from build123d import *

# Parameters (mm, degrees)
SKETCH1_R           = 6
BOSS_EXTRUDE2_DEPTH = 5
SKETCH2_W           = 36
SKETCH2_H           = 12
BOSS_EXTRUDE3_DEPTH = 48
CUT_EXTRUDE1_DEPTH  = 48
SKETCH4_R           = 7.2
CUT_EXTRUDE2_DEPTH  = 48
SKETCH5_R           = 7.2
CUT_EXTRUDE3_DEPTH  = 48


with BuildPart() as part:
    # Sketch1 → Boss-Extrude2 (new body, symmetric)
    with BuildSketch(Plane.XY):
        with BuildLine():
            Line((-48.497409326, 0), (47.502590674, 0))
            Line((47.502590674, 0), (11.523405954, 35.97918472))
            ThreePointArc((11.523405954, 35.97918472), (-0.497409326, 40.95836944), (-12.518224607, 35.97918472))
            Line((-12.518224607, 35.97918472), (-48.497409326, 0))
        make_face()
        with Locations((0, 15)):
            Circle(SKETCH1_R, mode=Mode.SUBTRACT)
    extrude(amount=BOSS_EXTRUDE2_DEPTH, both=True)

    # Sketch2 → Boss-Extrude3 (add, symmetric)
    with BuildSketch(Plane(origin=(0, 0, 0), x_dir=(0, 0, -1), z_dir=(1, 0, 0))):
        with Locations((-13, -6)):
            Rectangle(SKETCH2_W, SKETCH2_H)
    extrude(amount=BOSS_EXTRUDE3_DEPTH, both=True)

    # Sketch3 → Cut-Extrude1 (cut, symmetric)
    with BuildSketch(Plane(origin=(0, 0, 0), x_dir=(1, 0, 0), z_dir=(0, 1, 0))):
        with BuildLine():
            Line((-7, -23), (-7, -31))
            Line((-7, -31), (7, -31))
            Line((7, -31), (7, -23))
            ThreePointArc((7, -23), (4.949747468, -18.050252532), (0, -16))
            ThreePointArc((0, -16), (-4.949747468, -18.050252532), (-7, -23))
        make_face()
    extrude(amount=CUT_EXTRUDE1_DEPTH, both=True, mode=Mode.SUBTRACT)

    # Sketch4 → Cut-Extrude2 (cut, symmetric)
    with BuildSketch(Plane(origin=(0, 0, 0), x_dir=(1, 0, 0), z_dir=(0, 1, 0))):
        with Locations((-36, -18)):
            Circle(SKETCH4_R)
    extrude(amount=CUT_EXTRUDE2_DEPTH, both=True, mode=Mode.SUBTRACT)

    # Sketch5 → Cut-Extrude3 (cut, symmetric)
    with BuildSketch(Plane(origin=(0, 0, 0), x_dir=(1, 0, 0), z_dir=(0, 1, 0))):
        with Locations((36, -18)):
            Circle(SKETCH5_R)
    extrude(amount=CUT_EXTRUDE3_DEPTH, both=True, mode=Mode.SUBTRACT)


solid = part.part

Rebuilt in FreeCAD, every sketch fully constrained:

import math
import FreeCAD as App
import Part
import Sketcher

V = App.Vector

doc = App.newDocument("Part")
body = doc.addObject("PartDesign::Body", "Body")

sketch1 = body.newObject("Sketcher::SketchObject", "Sketch")
sketch1.AttachmentSupport = (doc.getObject("XY_Plane"), [""])
sketch1.MapMode = "FlatFace"
sketch1.addGeometry([
    Part.LineSegment(V(-48, 0, 0), V(48, 0, 0)),
    Part.LineSegment(V(48, 0, 0), V(12, 36, 0)),
    Part.ArcOfCircle(Part.Circle(V(0, 24, 0), V(0, 0, 1), 17), math.radians(45), math.radians(135)),
    Part.LineSegment(V(-13, 36, 0), V(-48, 0, 0)),
    Part.Circle(V(0, 15, 0), V(0, 0, 1), 6),
], False)
sketch1.addConstraint([
    Sketcher.Constraint("Coincident", 0, 2, 1, 1),
    Sketcher.Constraint("Tangent", 1, 2, 2, 1),
    Sketcher.Constraint("Tangent", 2, 2, 3, 1),
    Sketcher.Constraint("Coincident", 3, 2, 0, 1),
    Sketcher.Constraint("Horizontal", 0),
    Sketcher.Constraint("PointOnObject", 4, 3, -2),
    Sketcher.Constraint("PointOnObject", 0, 2, -1),
    Sketcher.Constraint("Perpendicular", 1, 3),
    Sketcher.Constraint("Horizontal", 1, 2, 2, 2),
    Sketcher.Constraint("Diameter", 4, 12.0),
    Sketcher.Constraint("Radius", 2, 17.0),
    Sketcher.Constraint("DistanceX", 0, 1, 0, 2, 96.0),
    Sketcher.Constraint("DistanceY", -1, 1, 4, 3, 15.0),
    Sketcher.Constraint("DistanceX", 2, 3, -1, 1, 0.497409),
])
pad1 = body.newObject("PartDesign::Pad", "Pad")
pad1.Profile = sketch1
pad1.Length = 10
pad1.Midplane = True

sketch2 = body.newObject("Sketcher::SketchObject", "Sketch001")
sketch2.AttachmentSupport = (doc.getObject("YZ_Plane"), [""])
sketch2.MapMode = "FlatFace"
sketch2.addGeometry([
    Part.LineSegment(V(0, 31, 0), V(-12, 31, 0)),
    Part.LineSegment(V(-12, 31, 0), V(-12, -5, 0)),
    Part.LineSegment(V(-12, -5, 0), V(0, -5, 0)),
    Part.LineSegment(V(0, -5, 0), V(0, 31, 0)),
], False)
sketch2.addConstraint([
    Sketcher.Constraint("Coincident", 0, 2, 1, 1),
    Sketcher.Constraint("Coincident", 1, 2, 2, 1),
    Sketcher.Constraint("Coincident", 2, 2, 3, 1),
    Sketcher.Constraint("Coincident", 3, 2, 0, 1),
    Sketcher.Constraint("Horizontal", 0),
    Sketcher.Constraint("Vertical", 1),
    Sketcher.Constraint("Horizontal", 2),
    Sketcher.Constraint("Vertical", 3),
    Sketcher.Constraint("PointOnObject", 2, 2, -2),
    Sketcher.Constraint("DistanceX", 0, 2, 0, 1, 12.0),
    Sketcher.Constraint("DistanceY", 1, 2, 1, 1, 36.0),
    Sketcher.Constraint("DistanceY", -1, 1, 0, 2, 31.0),
])
pad2 = body.newObject("PartDesign::Pad", "Pad001")
pad2.Profile = sketch2
pad2.Length = 96
pad2.Midplane = True

sketch3 = body.newObject("Sketcher::SketchObject", "Sketch002")
sketch3.AttachmentSupport = (doc.getObject("XZ_Plane"), [""])
sketch3.MapMode = "FlatFace"
sketch3.addGeometry([
    Part.LineSegment(V(-7, 23, 0), V(-7, 31, 0)),
    Part.LineSegment(V(-7, 31, 0), V(7, 31, 0)),
    Part.LineSegment(V(7, 31, 0), V(7, 23, 0)),
    Part.ArcOfCircle(Part.Circle(V(0, 23, 0), V(0, 0, 1), 7), math.radians(-90), math.radians(0)),
    Part.ArcOfCircle(Part.Circle(V(0, 23, 0), V(0, 0, 1), 7), math.radians(-180), math.radians(-90)),
], False)
sketch3.addConstraint([
    Sketcher.Constraint("Coincident", 0, 2, 1, 1),
    Sketcher.Constraint("Coincident", 1, 2, 2, 1),
    Sketcher.Constraint("Tangent", 2, 2, 3, 2),
    Sketcher.Constraint("Tangent", 3, 1, 4, 2),
    Sketcher.Constraint("Tangent", 4, 1, 0, 1),
    Sketcher.Constraint("Vertical", 0),
    Sketcher.Constraint("Horizontal", 1),
    Sketcher.Constraint("Vertical", 2),
    Sketcher.Constraint("Equal", 3, 4),
    Sketcher.Constraint("PointOnObject", 3, 3, -2),
    Sketcher.Constraint("PointOnObject", 3, 1, -2),
    Sketcher.Constraint("Radius", 3, 7.0),
    Sketcher.Constraint("DistanceY", 0, 1, 0, 2, 8.0),
    Sketcher.Constraint("DistanceY", -1, 1, 3, 3, 23.0),
])
pocket1 = body.newObject("PartDesign::Pocket", "Pocket")
pocket1.Profile = sketch3
pocket1.Length = 96
pocket1.Midplane = True

sketch4 = body.newObject("Sketcher::SketchObject", "Sketch003")
sketch4.AttachmentSupport = (doc.getObject("XZ_Plane"), [""])
sketch4.MapMode = "FlatFace"
sketch4.addGeometry(Part.Circle(V(-36, 18, 0), V(0, 0, 1), 7), False)
sketch4.addConstraint([
    Sketcher.Constraint("Diameter", 0, 14.4),
    Sketcher.Constraint("DistanceX", 0, 3, -1, 1, 36.0),
    Sketcher.Constraint("DistanceY", -1, 1, 0, 3, 18.0),
])
pocket2 = body.newObject("PartDesign::Pocket", "Pocket001")
pocket2.Profile = sketch4
pocket2.Length = 96
pocket2.Midplane = True

sketch5 = body.newObject("Sketcher::SketchObject", "Sketch004")
sketch5.AttachmentSupport = (doc.getObject("XZ_Plane"), [""])
sketch5.MapMode = "FlatFace"
sketch5.addGeometry(Part.Circle(V(36, 18, 0), V(0, 0, 1), 7), False)
sketch5.addConstraint([
    Sketcher.Constraint("Diameter", 0, 14.4),
    Sketcher.Constraint("DistanceX", -1, 1, 0, 3, 36.0),
    Sketcher.Constraint("DistanceY", -1, 1, 0, 3, 18.0),
])
pocket3 = body.newObject("PartDesign::Pocket", "Pocket002")
pocket3.Profile = sketch5
pocket3.Length = 96
pocket3.Midplane = True

doc.recompute()
